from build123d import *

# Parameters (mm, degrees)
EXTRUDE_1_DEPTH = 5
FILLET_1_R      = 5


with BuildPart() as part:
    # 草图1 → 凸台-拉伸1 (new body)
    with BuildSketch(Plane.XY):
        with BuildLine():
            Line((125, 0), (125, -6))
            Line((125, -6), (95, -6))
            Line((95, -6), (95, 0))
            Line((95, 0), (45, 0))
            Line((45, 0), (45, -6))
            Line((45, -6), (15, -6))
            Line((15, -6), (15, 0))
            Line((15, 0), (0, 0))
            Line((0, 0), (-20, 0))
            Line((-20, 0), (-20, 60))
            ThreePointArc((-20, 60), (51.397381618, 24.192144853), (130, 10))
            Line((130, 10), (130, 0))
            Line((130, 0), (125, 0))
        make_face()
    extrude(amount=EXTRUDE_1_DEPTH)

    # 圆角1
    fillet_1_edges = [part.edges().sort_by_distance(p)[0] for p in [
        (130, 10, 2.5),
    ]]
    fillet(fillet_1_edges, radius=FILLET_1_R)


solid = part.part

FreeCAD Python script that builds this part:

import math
import FreeCAD as App
import Part
import Sketcher

V = App.Vector
Q = App.Units.Quantity


def edges_at(feature, points):
    """Names of the edges that pass closest to the given points."""
    edges = feature.Shape.Edges
    near = lambda p: min(range(len(edges)), key=lambda i: edges[i].distToShape(Part.Vertex(*p))[0])
    return sorted({f"Edge{near(p) + 1}" for p in points})

doc = App.newDocument("Part")
body = doc.addObject("PartDesign::Body", "Body")

# Sketch on XY plane
sketch1 = body.newObject("Sketcher::SketchObject", "Sketch")
sketch1.AttachmentSupport = (doc.getObject("XY_Plane"), [""])
sketch1.MapMode = "FlatFace"
sketch1.addGeometry([
    Part.LineSegment(V(125, -6, 0), V(125, 0, 0)),  # 0
    Part.LineSegment(V(125, 0, 0), V(130, 0, 0)),  # 1
    Part.LineSegment(V(130, 0, 0), V(130, 10, 0)),  # 2
    Part.ArcOfCircle(Part.Circle(V(140, 290, 0), V(0, 0, 1), 280), math.radians(-125), math.radians(-92)),  # 3
    Part.LineSegment(V(-20, 60, 0), V(-20, 0, 0)),  # 4
    Part.LineSegment(V(-20, 0, 0), V(15, 0, 0)),  # 5
    Part.LineSegment(V(15, 0, 0), V(15, -6, 0)),  # 6
    Part.LineSegment(V(15, -6, 0), V(45, -6, 0)),  # 7
    Part.LineSegment(V(45, -6, 0), V(45, 0, 0)),  # 8
    Part.LineSegment(V(45, 0, 0), V(95, 0, 0)),  # 9
    Part.LineSegment(V(95, 0, 0), V(95, -6, 0)),  # 10
    Part.LineSegment(V(95, -6, 0), V(125, -6, 0)),  # 11
], False)
sketch1.addConstraint([
    Sketcher.Constraint("Coincident", 0, 2, 1, 1),
    Sketcher.Constraint("Coincident", 1, 2, 2, 1),
    Sketcher.Constraint("Coincident", 2, 2, 3, 2),
    Sketcher.Constraint("Coincident", 3, 1, 4, 1),
    Sketcher.Constraint("Coincident", 4, 2, 5, 1),
    Sketcher.Constraint("Coincident", 5, 2, 6, 1),
    Sketcher.Constraint("Coincident", 6, 2, 7, 1),
    Sketcher.Constraint("Coincident", 7, 2, 8, 1),
    Sketcher.Constraint("Coincident", 8, 2, 9, 1),
    Sketcher.Constraint("Coincident", 9, 2, 10, 1),
    Sketcher.Constraint("Coincident", 10, 2, 11, 1),
    Sketcher.Constraint("Coincident", 11, 2, 0, 1),
    Sketcher.Constraint("Vertical", 0),
    Sketcher.Constraint("Horizontal", 1),
    Sketcher.Constraint("Vertical", 2),
    Sketcher.Constraint("Vertical", 4),
    Sketcher.Constraint("Horizontal", 5),
    Sketcher.Constraint("Vertical", 6),
    Sketcher.Constraint("Horizontal", 7),
    Sketcher.Constraint("Vertical", 8),
    Sketcher.Constraint("Horizontal", 9),
    Sketcher.Constraint("Vertical", 10),
    Sketcher.Constraint("Horizontal", 11),
    Sketcher.Constraint("PointOnObject", 0, 2, -1),
    Sketcher.Constraint("PointOnObject", 4, 2, -1),
    Sketcher.Constraint("PointOnObject", 8, 2, -1),
    Sketcher.Constraint("Horizontal", 7, 2, 10, 2),
    Sketcher.Constraint("Equal", 7, 11),
    Sketcher.Constraint("Radius", 3, Q("280 mm")),
    Sketcher.Constraint("DistanceX", 1, 1, 1, 2, Q("5 mm")),
    Sketcher.Constraint("DistanceX", 5, 1, 5, 2, Q("35 mm")),
    Sketcher.Constraint("DistanceX", 7, 1, 7, 2, Q("30 mm")),
    Sketcher.Constraint("DistanceX", 9, 1, 9, 2, Q("50 mm")),
    Sketcher.Constraint("DistanceY", 0, 1, 0, 2, Q("6 mm")),
    Sketcher.Constraint("DistanceY", 2, 1, 2, 2, Q("10 mm")),
    Sketcher.Constraint("DistanceY", 4, 2, 4, 1, Q("60 mm")),
    Sketcher.Constraint("DistanceX", -1, 1, 0, 2, Q("125 mm")),
])
pad1 = body.newObject("PartDesign::Pad", "Pad")
pad1.Profile = sketch1
pad1.Length = 5
doc.recompute()

fillet = body.newObject("PartDesign::Fillet", "Fillet")
fillet.Base = (pad1, edges_at(pad1, [(130, 10, 2.5)]))
fillet.Radius = 5

doc.recompute()
